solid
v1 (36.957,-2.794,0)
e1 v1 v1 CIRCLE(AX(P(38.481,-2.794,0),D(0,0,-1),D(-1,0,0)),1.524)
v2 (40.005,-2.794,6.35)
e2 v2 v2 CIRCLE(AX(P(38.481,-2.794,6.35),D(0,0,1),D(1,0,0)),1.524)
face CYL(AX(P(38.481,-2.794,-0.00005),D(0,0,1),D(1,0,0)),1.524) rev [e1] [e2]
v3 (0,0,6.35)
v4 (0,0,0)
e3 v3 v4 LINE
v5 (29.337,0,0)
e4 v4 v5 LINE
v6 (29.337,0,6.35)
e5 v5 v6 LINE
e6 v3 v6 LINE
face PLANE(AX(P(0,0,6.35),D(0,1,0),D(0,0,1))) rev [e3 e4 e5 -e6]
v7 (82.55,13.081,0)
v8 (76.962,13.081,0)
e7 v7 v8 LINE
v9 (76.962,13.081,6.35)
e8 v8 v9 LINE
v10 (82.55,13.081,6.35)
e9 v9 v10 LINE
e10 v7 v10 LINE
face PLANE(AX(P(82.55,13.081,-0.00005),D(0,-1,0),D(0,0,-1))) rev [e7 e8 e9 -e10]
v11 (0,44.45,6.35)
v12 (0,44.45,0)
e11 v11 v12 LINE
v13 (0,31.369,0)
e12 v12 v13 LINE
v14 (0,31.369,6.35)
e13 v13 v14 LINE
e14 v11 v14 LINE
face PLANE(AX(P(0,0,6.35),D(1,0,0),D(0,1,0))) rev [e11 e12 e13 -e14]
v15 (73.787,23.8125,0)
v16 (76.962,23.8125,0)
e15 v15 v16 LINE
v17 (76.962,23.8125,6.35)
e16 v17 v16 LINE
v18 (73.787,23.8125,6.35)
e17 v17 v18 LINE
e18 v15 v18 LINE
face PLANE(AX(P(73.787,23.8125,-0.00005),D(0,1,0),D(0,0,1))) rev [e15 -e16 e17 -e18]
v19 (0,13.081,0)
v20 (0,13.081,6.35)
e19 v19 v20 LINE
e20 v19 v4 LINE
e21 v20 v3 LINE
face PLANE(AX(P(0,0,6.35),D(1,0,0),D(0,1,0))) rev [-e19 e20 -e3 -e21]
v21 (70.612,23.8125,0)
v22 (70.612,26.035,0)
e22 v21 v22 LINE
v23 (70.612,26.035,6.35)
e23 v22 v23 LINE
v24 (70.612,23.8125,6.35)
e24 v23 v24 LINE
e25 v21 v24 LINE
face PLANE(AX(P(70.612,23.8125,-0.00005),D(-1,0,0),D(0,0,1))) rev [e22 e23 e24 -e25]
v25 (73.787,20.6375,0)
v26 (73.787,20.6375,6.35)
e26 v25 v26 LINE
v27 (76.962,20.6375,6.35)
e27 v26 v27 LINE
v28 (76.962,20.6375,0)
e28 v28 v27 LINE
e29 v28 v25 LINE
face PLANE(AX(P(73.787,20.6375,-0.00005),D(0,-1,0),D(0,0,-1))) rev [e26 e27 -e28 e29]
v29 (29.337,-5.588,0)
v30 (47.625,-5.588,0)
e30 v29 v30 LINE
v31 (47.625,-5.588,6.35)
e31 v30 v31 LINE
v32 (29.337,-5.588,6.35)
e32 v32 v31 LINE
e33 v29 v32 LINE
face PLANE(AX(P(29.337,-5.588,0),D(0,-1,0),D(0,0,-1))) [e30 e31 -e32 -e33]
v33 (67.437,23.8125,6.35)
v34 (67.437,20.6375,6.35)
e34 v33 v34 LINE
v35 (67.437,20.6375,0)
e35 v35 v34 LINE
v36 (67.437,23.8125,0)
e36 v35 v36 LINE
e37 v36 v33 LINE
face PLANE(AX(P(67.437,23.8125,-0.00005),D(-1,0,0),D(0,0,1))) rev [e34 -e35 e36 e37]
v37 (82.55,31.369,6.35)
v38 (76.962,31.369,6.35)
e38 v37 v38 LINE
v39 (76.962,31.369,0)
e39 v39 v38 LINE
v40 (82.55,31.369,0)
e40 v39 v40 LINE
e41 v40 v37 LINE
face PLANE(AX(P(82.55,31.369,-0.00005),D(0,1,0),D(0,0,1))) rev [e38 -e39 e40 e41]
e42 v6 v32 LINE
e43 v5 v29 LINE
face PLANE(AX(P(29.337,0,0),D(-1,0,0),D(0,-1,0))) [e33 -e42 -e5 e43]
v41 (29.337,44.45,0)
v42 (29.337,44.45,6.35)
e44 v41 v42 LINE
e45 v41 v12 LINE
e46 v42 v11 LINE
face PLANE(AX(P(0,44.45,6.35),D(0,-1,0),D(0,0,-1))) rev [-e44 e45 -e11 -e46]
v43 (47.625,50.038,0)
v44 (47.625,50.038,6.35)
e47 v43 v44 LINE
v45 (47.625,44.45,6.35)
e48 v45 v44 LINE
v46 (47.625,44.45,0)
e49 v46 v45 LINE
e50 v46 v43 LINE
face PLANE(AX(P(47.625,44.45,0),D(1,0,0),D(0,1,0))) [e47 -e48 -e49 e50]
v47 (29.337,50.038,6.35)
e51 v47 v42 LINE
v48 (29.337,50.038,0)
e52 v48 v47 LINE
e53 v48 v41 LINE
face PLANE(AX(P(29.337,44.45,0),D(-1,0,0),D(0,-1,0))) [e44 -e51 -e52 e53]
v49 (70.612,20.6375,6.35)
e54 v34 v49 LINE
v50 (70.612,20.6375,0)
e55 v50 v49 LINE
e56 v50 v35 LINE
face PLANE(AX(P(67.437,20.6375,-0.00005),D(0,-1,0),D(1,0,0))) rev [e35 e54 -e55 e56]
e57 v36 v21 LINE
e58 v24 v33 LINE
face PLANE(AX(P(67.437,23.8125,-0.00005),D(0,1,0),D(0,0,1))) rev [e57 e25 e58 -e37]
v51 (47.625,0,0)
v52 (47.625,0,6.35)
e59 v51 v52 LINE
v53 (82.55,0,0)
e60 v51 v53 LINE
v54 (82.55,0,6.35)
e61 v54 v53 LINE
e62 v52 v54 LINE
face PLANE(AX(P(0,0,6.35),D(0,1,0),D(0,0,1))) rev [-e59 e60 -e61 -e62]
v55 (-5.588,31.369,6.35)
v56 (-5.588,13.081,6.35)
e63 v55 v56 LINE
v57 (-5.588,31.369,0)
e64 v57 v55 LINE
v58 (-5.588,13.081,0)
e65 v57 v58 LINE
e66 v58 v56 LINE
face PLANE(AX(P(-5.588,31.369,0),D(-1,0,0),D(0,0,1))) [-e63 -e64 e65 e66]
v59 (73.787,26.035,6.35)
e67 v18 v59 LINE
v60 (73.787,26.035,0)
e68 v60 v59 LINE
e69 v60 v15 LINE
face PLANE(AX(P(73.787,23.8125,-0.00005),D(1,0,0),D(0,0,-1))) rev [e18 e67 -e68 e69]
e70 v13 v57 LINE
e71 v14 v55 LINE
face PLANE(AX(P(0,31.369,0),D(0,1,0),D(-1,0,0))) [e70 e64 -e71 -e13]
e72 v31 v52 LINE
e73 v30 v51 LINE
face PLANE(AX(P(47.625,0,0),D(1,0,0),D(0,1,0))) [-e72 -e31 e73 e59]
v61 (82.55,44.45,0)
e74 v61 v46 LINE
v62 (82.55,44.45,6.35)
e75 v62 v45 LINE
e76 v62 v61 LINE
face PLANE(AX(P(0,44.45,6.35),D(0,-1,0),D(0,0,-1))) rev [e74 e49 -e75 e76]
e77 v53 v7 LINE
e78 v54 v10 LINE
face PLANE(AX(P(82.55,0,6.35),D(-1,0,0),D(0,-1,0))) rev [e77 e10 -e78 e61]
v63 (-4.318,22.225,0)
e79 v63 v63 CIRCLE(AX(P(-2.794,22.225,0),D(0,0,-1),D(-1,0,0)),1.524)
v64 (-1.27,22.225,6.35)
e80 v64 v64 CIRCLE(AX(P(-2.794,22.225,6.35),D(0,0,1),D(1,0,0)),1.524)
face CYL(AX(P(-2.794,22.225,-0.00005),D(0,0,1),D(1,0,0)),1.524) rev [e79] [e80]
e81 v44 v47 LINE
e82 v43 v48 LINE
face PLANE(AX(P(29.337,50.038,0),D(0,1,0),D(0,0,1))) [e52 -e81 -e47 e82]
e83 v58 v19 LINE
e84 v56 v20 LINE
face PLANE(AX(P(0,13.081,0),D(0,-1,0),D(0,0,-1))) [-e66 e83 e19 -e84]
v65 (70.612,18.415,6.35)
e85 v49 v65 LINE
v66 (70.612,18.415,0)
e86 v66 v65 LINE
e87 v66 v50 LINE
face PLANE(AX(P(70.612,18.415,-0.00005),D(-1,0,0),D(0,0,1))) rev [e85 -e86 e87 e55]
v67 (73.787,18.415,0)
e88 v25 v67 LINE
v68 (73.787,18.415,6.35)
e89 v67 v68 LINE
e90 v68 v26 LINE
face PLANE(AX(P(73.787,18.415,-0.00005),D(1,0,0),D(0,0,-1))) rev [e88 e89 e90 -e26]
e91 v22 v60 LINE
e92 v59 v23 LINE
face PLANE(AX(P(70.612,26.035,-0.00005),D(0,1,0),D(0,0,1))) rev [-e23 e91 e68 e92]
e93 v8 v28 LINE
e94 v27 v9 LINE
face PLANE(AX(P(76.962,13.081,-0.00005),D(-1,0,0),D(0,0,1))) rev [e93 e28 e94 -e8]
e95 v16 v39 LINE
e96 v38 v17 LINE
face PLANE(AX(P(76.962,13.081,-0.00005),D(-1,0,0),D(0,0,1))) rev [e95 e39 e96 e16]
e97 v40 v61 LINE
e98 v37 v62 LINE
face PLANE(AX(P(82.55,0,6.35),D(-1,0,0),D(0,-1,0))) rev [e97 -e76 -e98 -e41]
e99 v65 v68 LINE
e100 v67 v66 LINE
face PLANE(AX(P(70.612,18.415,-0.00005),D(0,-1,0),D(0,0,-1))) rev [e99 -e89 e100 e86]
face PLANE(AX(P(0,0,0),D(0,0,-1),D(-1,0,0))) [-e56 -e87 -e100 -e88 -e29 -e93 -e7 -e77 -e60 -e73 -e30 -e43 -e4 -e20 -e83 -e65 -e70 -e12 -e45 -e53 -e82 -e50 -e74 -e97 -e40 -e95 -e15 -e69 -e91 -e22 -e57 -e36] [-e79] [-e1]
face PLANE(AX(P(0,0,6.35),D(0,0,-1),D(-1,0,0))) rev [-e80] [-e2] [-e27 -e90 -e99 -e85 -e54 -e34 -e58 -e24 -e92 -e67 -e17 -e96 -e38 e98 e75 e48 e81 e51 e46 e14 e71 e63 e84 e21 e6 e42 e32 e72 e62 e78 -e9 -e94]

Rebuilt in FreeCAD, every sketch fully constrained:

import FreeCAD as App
import Part
import Sketcher

V = App.Vector
Q = App.Units.Quantity


def add_polygon(sketch, points):
    """Adds a closed chain of lines whose ends are joined by coincident constraints."""
    first, n = sketch.GeometryCount, len(points)
    for a, b in zip(points, points[1:] + points[:1]):
        sketch.addGeometry(Part.LineSegment(App.Vector(*a, 0), App.Vector(*b, 0)), False)
    for i in range(n):
        sketch.addConstraint(Sketcher.Constraint("Coincident", first + i, 2, first + (i + 1) % n, 1))

doc = App.newDocument("Part")
body = doc.addObject("PartDesign::Body", "Body")

# Sketch on XY plane
sketch1 = body.newObject("Sketcher::SketchObject", "Sketch")
sketch1.AttachmentSupport = (doc.getObject("XY_Plane"), [""])
sketch1.MapMode = "FlatFace"
add_polygon(sketch1, [(0, 44), (0, 0), (83, 0), (83, 44)])  # lines 0-3
sketch1.addConstraint([
    Sketcher.Constraint("Vertical", 0),
    Sketcher.Constraint("Horizontal", 1),
    Sketcher.Constraint("Vertical", 2),
    Sketcher.Constraint("Horizontal", 3),
    Sketcher.Constraint("Coincident", 0, 2, -1, 1),
    Sketcher.Constraint("DistanceX", 1, 1, 1, 2, Q("3.25 in")),
    Sketcher.Constraint("DistanceY", 0, 2, 0, 1, Q("1.75 in")),
])
pad1 = body.newObject("PartDesign::Pad", "Pad")
pad1.Profile = sketch1
pad1.Length = Q("0.25 in")

# Sketch on XY plane
sketch2 = body.newObject("Sketcher::SketchObject", "Sketch001")
sketch2.AttachmentSupport = (doc.getObject("XY_Plane"), [""])
sketch2.MapMode = "FlatFace"
sketch2.AttachmentOffset = App.Placement(V(0, 0, 0.25 * 25.4), App.Rotation())
add_polygon(sketch2, [(-6, 31), (-6, 13), (0, 13), (0, 31)])  # lines 0-3
sketch2.addConstraint([
    Sketcher.Constraint("Vertical", 0),
    Sketcher.Constraint("Horizontal", 1),
    Sketcher.Constraint("Vertical", 2),
    Sketcher.Constraint("Horizontal", 3),
    Sketcher.Constraint("PointOnObject", 1, 2, -2),
    Sketcher.Constraint("DistanceX", 1, 1, 1, 2, Q("0.22 in")),
    Sketcher.Constraint("DistanceY", 0, 2, 0, 1, Q("0.72 in")),
    Sketcher.Constraint("DistanceY", -1, 1, 0, 2, Q("0.515 in")),
])
pad2 = body.newObject("PartDesign::Pad", "Pad001")
pad2.Profile = sketch2
pad2.Length = Q("0.25 in")
pad2.Reversed = True

# Sketch on XY plane
sketch3 = body.newObject("Sketcher::SketchObject", "Sketch002")
sketch3.AttachmentSupport = (doc.getObject("XY_Plane"), [""])
sketch3.MapMode = "FlatFace"
sketch3.AttachmentOffset = App.Placement(V(0, 0, 0.25 * 25.4), App.Rotation())
add_polygon(sketch3, [(29, 50), (29, 44), (48, 44), (48, 50)])  # lines 0-3
add_polygon(sketch3, [(29, 0), (29, -6), (48, -6), (48, 0)])  # lines 4-7
sketch3.addConstraint([
    Sketcher.Constraint("Vertical", 0),
    Sketcher.Constraint("Horizontal", 1),
    Sketcher.Constraint("Vertical", 2),
    Sketcher.Constraint("Horizontal", 3),
    Sketcher.Constraint("Vertical", 4),
    Sketcher.Constraint("Horizontal", 5),
    Sketcher.Constraint("Vertical", 6),
    Sketcher.Constraint("Horizontal", 7),
    Sketcher.Constraint("PointOnObject", 6, 2, -1),
    Sketcher.Constraint("Vertical", 3, 2, 4, 2),
    Sketcher.Constraint("Vertical", 2, 2, 5, 2),
    Sketcher.Constraint("Equal", 2, 4),
    Sketcher.Constraint("DistanceX", 1, 1, 1, 2, Q("0.72 in")),
    Sketcher.Constraint("DistanceY", 0, 2, 0, 1, Q("0.22 in")),
    Sketcher.Constraint("DistanceY", -1, 1, 0, 2, Q("1.75 in")),
    Sketcher.Constraint("DistanceX", -1, 1, 0, 2, Q("1.155 in")),
])
pad3 = body.newObject("PartDesign::Pad", "Pad002")
pad3.Profile = sketch3
pad3.Length = Q("0.25 in")
pad3.Reversed = True

# Sketch on XY plane
sketch4 = body.newObject("Sketcher::SketchObject", "Sketch003")
sketch4.AttachmentSupport = (doc.getObject("XY_Plane"), [""])
sketch4.MapMode = "FlatFace"
sketch4.AttachmentOffset = App.Placement(V(0, 0, 0.25 * 25.4), App.Rotation())
add_polygon(sketch4, [(77, 31), (77, 13), (83, 13), (83, 31)])  # lines 0-3
sketch4.addConstraint([
    Sketcher.Constraint("Vertical", 0),
    Sketcher.Constraint("Horizontal", 1),
    Sketcher.Constraint("Vertical", 2),
    Sketcher.Constraint("Horizontal", 3),
    Sketcher.Constraint("DistanceX", 1, 1, 1, 2, Q("0.22 in")),
    Sketcher.Constraint("DistanceY", 0, 2, 0, 1, Q("0.72 in")),
    Sketcher.Constraint("DistanceX", -1, 1, 0, 2, Q("3.03 in")),
    Sketcher.Constraint("DistanceY", -1, 1, 0, 2, Q("0.515 in")),
])
pocket1 = body.newObject("PartDesign::Pocket", "Pocket")
pocket1.Profile = sketch4
pocket1.Type = "ThroughAll"

# Sketch on XY plane
sketch5 = body.newObject("Sketcher::SketchObject", "Sketch004")
sketch5.AttachmentSupport = (doc.getObject("XY_Plane"), [""])
sketch5.MapMode = "FlatFace"
sketch5.AttachmentOffset = App.Placement(V(0, 0, 0.25 * 25.4), App.Rotation())
sketch5.addGeometry(Part.Circle(V(-2.8, 22.2, 0), V(0, 0, 1), 1.5), False)  # 0
sketch5.addGeometry(Part.Circle(V(38.5, -2.8, 0), V(0, 0, 1), 1.5), False)  # 1
add_polygon(sketch5, [(70.6, 23.8), (67.4, 23.8), (67.4, 20.6), (70.6, 20.6), (70.6, 18.4), (73.8, 18.4), (73.8, 20.6), (77, 20.6), (77, 23.8), (73.8, 23.8), (73.8, 26), (70.6, 26)])  # lines 2-13
sketch5.addConstraint([
    Sketcher.Constraint("Horizontal", 2),
    Sketcher.Constraint("Vertical", 3),
    Sketcher.Constraint("Horizontal", 4),
    Sketcher.Constraint("Vertical", 5),
    Sketcher.Constraint("Horizontal", 6),
    Sketcher.Constraint("Vertical", 7),
    Sketcher.Constraint("Horizontal", 8),
    Sketcher.Constraint("Vertical", 9),
    Sketcher.Constraint("Horizontal", 10),
    Sketcher.Constraint("Vertical", 11),
    Sketcher.Constraint("Horizontal", 12),
    Sketcher.Constraint("Vertical", 13),
    Sketcher.Constraint("Equal", 0, 1),
    Sketcher.Constraint("Horizontal", 4, 2, 7, 2),
    Sketcher.Constraint("Horizontal", 2, 2, 9, 2),
    Sketcher.Constraint("Vertical", 7, 2, 10, 2),
    Sketcher.Constraint("Vertical", 5, 2, 12, 2),
    Sketcher.Constraint("Equal", 4, 6),
    Sketcher.Constraint("Equal", 6, 8),
    Sketcher.Constraint("Equal", 12, 3),
    Sketcher.Constraint("Equal", 7, 11),
    Sketcher.Constraint("Diameter", 0, Q("0.12 in")),
    Sketcher.Constraint("DistanceX", 2, 2, 2, 1, Q("0.125 in")),
    Sketcher.Constraint("DistanceX", 0, 3, -1, 1, Q("0.11 in")),
    Sketcher.Constraint("DistanceY", 1, 3, -1, 1, Q("0.11 in")),
    Sketcher.Constraint("DistanceX", -1, 1, 4, 2, Q("2.78 in")),
    Sketcher.Constraint("DistanceX", 1, 3, 2, 2, Q("1.14 in")),
    Sketcher.Constraint("DistanceY", 5, 2, 0, 3, Q("0.15 in")),
    Sketcher.Constraint("DistanceY", 5, 2, 5, 1, Q("0.0875 in")),
    Sketcher.Constraint("DistanceY", -1, 1, 0, 3, Q("0.875 in")),
])
pocket2 = body.newObject("PartDesign::Pocket", "Pocket001")
pocket2.Profile = sketch5
pocket2.Type = "ThroughAll"

doc.recompute()
